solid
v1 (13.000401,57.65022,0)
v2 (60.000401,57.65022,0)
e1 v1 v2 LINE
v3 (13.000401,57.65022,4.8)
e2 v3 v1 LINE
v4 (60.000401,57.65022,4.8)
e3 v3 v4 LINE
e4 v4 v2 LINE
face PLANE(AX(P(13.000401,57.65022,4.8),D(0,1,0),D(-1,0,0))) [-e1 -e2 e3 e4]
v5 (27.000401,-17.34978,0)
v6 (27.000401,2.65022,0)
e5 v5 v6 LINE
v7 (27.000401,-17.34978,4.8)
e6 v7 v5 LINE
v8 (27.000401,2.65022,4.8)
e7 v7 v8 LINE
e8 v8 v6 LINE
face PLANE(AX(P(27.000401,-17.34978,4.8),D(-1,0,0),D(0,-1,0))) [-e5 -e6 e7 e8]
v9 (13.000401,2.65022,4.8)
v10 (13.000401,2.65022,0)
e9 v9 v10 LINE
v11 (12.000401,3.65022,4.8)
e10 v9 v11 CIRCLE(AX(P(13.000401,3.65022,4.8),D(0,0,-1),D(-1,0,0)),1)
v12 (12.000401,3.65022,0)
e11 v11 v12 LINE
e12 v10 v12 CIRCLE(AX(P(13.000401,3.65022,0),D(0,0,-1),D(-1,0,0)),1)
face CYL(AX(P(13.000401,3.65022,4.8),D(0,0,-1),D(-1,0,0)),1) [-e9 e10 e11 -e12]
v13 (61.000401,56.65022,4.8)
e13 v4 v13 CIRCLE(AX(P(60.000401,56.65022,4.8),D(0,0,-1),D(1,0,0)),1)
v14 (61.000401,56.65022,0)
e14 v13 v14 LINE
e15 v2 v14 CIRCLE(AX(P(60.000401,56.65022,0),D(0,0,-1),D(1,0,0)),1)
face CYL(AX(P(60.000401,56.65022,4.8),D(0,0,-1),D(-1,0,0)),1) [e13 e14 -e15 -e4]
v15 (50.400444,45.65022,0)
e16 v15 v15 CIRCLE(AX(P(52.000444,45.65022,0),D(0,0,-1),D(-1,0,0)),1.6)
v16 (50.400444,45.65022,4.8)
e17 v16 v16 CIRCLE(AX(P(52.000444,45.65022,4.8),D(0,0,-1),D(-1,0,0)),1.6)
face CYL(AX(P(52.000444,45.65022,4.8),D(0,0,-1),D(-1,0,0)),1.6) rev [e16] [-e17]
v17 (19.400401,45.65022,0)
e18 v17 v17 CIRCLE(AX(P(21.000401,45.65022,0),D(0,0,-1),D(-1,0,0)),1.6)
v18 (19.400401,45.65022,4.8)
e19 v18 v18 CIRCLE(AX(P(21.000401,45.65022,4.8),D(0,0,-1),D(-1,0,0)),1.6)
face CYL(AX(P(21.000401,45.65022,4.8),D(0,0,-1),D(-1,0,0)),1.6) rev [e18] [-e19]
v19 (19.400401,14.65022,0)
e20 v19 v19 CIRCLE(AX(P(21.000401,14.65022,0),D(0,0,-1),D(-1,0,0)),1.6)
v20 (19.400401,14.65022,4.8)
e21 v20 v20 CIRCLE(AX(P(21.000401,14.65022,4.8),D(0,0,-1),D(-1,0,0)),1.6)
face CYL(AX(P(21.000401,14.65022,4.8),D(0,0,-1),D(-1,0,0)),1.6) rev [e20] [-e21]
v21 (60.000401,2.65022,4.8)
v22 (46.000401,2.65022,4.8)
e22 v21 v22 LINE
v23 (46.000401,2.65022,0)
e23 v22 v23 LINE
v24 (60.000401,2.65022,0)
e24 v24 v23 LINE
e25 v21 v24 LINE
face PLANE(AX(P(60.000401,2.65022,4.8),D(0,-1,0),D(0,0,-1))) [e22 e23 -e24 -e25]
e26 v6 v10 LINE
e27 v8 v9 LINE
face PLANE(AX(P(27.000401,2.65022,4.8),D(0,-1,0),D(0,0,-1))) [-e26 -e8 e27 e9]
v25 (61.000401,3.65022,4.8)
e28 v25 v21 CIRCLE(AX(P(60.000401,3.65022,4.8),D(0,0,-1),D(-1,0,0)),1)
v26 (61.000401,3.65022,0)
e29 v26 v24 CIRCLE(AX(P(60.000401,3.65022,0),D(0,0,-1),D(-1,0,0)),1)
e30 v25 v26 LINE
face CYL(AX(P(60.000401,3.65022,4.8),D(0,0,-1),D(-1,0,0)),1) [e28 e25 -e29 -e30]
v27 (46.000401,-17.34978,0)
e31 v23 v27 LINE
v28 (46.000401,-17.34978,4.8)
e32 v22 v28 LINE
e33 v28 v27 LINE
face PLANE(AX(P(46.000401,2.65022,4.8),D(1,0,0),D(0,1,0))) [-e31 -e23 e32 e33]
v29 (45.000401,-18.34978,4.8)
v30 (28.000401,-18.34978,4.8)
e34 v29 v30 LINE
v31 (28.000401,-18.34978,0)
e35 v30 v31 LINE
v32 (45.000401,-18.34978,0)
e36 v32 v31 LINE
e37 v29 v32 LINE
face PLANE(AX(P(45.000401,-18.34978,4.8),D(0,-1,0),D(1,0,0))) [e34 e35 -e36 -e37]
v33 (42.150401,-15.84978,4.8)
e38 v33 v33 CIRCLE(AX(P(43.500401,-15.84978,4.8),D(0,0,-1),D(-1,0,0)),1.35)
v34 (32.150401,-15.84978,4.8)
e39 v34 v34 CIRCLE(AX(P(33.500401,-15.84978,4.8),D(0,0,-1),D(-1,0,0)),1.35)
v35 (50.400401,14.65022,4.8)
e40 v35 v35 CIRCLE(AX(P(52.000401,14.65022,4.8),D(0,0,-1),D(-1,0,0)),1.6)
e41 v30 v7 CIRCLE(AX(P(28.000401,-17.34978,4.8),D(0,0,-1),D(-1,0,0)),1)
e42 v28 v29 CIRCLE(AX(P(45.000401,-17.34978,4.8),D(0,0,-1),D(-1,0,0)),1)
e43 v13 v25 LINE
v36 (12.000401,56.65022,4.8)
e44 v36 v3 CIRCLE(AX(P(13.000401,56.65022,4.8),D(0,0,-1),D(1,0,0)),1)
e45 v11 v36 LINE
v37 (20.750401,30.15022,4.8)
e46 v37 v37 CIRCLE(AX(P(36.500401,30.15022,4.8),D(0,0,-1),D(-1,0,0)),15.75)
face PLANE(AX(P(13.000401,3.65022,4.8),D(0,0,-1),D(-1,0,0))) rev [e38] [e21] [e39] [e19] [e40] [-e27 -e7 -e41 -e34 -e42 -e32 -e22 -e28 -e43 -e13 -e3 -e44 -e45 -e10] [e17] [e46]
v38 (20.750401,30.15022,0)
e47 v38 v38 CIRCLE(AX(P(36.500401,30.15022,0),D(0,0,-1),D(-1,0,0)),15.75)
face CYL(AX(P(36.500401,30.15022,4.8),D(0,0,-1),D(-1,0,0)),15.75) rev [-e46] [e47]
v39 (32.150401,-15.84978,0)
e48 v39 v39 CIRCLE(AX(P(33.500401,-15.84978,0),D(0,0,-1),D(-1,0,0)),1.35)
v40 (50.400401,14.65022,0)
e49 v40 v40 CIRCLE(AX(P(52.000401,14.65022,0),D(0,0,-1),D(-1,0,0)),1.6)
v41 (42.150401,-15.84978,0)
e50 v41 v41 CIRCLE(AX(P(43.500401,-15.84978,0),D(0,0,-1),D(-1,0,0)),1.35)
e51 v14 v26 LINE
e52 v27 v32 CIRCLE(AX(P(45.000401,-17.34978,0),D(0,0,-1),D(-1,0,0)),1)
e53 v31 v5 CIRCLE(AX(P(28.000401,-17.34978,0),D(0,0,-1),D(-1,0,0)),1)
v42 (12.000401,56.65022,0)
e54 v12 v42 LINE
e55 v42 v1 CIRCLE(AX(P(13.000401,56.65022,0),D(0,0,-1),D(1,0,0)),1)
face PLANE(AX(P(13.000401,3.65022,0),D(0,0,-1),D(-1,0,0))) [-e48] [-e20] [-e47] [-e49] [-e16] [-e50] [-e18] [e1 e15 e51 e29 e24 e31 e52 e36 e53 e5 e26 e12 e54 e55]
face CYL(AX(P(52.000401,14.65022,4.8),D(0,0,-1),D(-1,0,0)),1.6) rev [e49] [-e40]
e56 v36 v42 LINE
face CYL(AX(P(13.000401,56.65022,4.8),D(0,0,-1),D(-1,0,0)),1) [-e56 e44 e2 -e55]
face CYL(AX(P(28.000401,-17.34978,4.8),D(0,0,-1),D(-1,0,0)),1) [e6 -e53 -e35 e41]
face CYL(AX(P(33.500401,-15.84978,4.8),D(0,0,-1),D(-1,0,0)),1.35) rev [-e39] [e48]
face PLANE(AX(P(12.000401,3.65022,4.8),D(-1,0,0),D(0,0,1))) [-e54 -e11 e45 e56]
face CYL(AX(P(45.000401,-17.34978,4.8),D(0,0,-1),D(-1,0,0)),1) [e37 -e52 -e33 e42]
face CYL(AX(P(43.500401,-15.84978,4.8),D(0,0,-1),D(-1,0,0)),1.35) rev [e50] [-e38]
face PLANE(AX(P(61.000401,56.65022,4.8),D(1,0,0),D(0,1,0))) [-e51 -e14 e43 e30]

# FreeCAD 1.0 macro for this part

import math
import FreeCAD as App
import Part
import Sketcher
Q = App.Units.Quantity

doc = App.newDocument("Part")
params = doc.addObject("Spreadsheet::Sheet", "Params")
for row, (alias, value) in enumerate([
    ("sketch1_radius", "1 mm"),
    ("sketch1_diameter", "2.7 mm"),
    ("sketch1_diameter2", "3.2 mm"),
    ("sketch1_diameter3", "31.5 mm"),
    ("sketch1_width", "47 mm"),
    ("pad1_length", "4.8 mm"),
], start=1):
    params.set(f"A{row}", alias)
    params.set(f"B{row}", "=" + value)
    params.setAlias(f"B{row}", alias)

body = doc.addObject("PartDesign::Body", "Body")

# Sketch on XY plane
sketch1 = body.newObject("Sketcher::SketchObject", "Sketch")
sketch1.AttachmentSupport = (doc.getObject("XY_Plane"), [""])
sketch1.MapMode = "FlatFace"
sketch1.addGeometry([
    Part.LineSegment(App.Vector(12, 3.7, 0), App.Vector(12, 56.7, 0)),  # 0
    Part.ArcOfCircle(Part.Circle(App.Vector(13, 56.7, 0), App.Vector(0, 0, 1), 1), math.radians(90), math.radians(180)),  # 1
    Part.LineSegment(App.Vector(13, 57.7, 0), App.Vector(60, 57.7, 0)),  # 2
    Part.ArcOfCircle(Part.Circle(App.Vector(60, 56.7, 0), App.Vector(0, 0, 1), 1), math.radians(0), math.radians(90)),  # 3
    Part.LineSegment(App.Vector(61, 56.7, 0), App.Vector(61, 3.7, 0)),  # 4
    Part.ArcOfCircle(Part.Circle(App.Vector(60, 3.7, 0), App.Vector(0, 0, 1), 1), math.radians(-90), math.radians(0)),  # 5
    Part.LineSegment(App.Vector(60, 2.7, 0), App.Vector(46, 2.7, 0)),  # 6
    Part.LineSegment(App.Vector(46, 2.7, 0), App.Vector(46, -17.3, 0)),  # 7
    Part.ArcOfCircle(Part.Circle(App.Vector(45, -17.3, 0), App.Vector(0, 0, 1), 1), math.radians(-90), math.radians(0)),  # 8
    Part.LineSegment(App.Vector(45, -18.3, 0), App.Vector(28, -18.3, 0)),  # 9
    Part.ArcOfCircle(Part.Circle(App.Vector(28, -17.3, 0), App.Vector(0, 0, 1), 1), math.radians(-180), math.radians(-90)),  # 10
    Part.LineSegment(App.Vector(27, -17.3, 0), App.Vector(27, 2.7, 0)),  # 11
    Part.LineSegment(App.Vector(27, 2.7, 0), App.Vector(13, 2.7, 0)),  # 12
    Part.ArcOfCircle(Part.Circle(App.Vector(13, 3.7, 0), App.Vector(0, 0, 1), 1), math.radians(-180), math.radians(-90)),  # 13
    Part.Circle(App.Vector(43.5, -15.8, 0), App.Vector(0, 0, 1), 1.4),  # 14
    Part.Circle(App.Vector(52, 14.7, 0), App.Vector(0, 0, 1), 1.6),  # 15
    Part.Circle(App.Vector(33.5, -15.8, 0), App.Vector(0, 0, 1), 1.4),  # 16
    Part.Circle(App.Vector(21, 14.7, 0), App.Vector(0, 0, 1), 1.6),  # 17
    Part.Circle(App.Vector(52, 45.7, 0), App.Vector(0, 0, 1), 1.6),  # 18
    Part.Circle(App.Vector(36.5, 30.2, 0), App.Vector(0, 0, 1), 15.8),  # 19
    Part.Circle(App.Vector(21, 45.7, 0), App.Vector(0, 0, 1), 1.6),  # 20
], False)
sketch1.addConstraint([
    Sketcher.Constraint("Tangent", 0, 2, 1, 2),
    Sketcher.Constraint("Tangent", 1, 1, 2, 1),
    Sketcher.Constraint("Tangent", 2, 2, 3, 2),
    Sketcher.Constraint("Tangent", 3, 1, 4, 1),
    Sketcher.Constraint("Tangent", 4, 2, 5, 2),
    Sketcher.Constraint("Tangent", 5, 1, 6, 1),
    Sketcher.Constraint("Coincident", 6, 2, 7, 1),
    Sketcher.Constraint("Tangent", 7, 2, 8, 2),
    Sketcher.Constraint("Tangent", 8, 1, 9, 1),
    Sketcher.Constraint("Tangent", 9, 2, 10, 2),
    Sketcher.Constraint("Tangent", 10, 1, 11, 1),
    Sketcher.Constraint("Coincident", 11, 2, 12, 1),
    Sketcher.Constraint("Tangent", 12, 2, 13, 2),
    Sketcher.Constraint("Tangent", 13, 1, 0, 1),
    Sketcher.Constraint("Vertical", 0),
    Sketcher.Constraint("Horizontal", 2),
    Sketcher.Constraint("Vertical", 4),
    Sketcher.Constraint("Horizontal", 6),
    Sketcher.Constraint("Vertical", 7),
    Sketcher.Constraint("Horizontal", 9),
    Sketcher.Constraint("Vertical", 11),
    Sketcher.Constraint("Horizontal", 12),
    Sketcher.Constraint("Equal", 1, 3),
    Sketcher.Constraint("Equal", 3, 5),
    Sketcher.Constraint("Equal", 5, 8),
    Sketcher.Constraint("Equal", 8, 10),
    Sketcher.Constraint("Equal", 10, 13),
    Sketcher.Constraint("Equal", 14, 16),
    Sketcher.Constraint("Equal", 15, 17),
    Sketcher.Constraint("Equal", 17, 18),
    Sketcher.Constraint("Equal", 18, 20),
    Sketcher.Constraint("Horizontal", 5, 3, 13, 3),
    Sketcher.Constraint("Horizontal", 14, 3, 16, 3),
    Sketcher.Constraint("Horizontal", 15, 3, 17, 3),
    Sketcher.Constraint("Horizontal", 18, 3, 20, 3),
    Sketcher.Constraint("Vertical", 17, 3, 20, 3),
    Sketcher.Constraint("Equal", 6, 12),
    Sketcher.Constraint("Radius", 1, Q("1 mm")),
    Sketcher.Constraint("Diameter", 14, Q("2.7 mm")),
    Sketcher.Constraint("Diameter", 15, Q("3.2 mm")),
    Sketcher.Constraint("Diameter", 19, Q("31.5 mm")),
    Sketcher.Constraint("DistanceX", 2, 1, 2, 2, Q("47 mm")),
    Sketcher.Constraint("DistanceX", 6, 2, 6, 1, Q("14 mm")),
    Sketcher.Constraint("DistanceY", 0, 1, 0, 2, Q("53 mm")),
    Sketcher.Constraint("DistanceY", 7, 2, 7, 1, Q("20 mm")),
    Sketcher.Constraint("DistanceX", 15, 3, 5, 3, Q("8 mm")),
    Sketcher.Constraint("DistanceY", 5, 3, 15, 3, Q("11 mm")),
    Sketcher.Constraint("DistanceX", 16, 3, 14, 3, Q("10 mm")),
    Sketcher.Constraint("DistanceX", 13, 3, 17, 3, Q("8 mm")),
    Sketcher.Constraint("DistanceY", 18, 3, 3, 3, Q("11 mm")),
    Sketcher.Constraint("DistanceX", 14, 3, 8, 3, Q("1.5 mm")),
    Sketcher.Constraint("DistanceY", 8, 3, 14, 3, Q("1.5 mm")),
    Sketcher.Constraint("DistanceX", 19, 3, 15, 3, Q("15.5 mm")),
    Sketcher.Constraint("DistanceY", 15, 3, 19, 3, Q("15.5 mm")),
    Sketcher.Constraint("DistanceX", -1, 1, 1, 3, Q("13.000401 mm")),
    Sketcher.Constraint("DistanceY", -1, 1, 1, 3, Q("56.65022 mm")),
    Sketcher.Constraint("DistanceX", -1, 1, 18, 3, Q("52.000444 mm")),
])
sketch1.setExpression("Constraints[37]", "Params.sketch1_radius")
sketch1.setExpression("Constraints[38]", "Params.sketch1_diameter")
sketch1.setExpression("Constraints[39]", "Params.sketch1_diameter2")
sketch1.setExpression("Constraints[40]", "Params.sketch1_diameter3")
sketch1.setExpression("Constraints[41]", "Params.sketch1_width")
pad1 = body.newObject("PartDesign::Pad", "Pad")
pad1.Profile = sketch1
pad1.setExpression("Length", "Params.pad1_length")

doc.recompute()
